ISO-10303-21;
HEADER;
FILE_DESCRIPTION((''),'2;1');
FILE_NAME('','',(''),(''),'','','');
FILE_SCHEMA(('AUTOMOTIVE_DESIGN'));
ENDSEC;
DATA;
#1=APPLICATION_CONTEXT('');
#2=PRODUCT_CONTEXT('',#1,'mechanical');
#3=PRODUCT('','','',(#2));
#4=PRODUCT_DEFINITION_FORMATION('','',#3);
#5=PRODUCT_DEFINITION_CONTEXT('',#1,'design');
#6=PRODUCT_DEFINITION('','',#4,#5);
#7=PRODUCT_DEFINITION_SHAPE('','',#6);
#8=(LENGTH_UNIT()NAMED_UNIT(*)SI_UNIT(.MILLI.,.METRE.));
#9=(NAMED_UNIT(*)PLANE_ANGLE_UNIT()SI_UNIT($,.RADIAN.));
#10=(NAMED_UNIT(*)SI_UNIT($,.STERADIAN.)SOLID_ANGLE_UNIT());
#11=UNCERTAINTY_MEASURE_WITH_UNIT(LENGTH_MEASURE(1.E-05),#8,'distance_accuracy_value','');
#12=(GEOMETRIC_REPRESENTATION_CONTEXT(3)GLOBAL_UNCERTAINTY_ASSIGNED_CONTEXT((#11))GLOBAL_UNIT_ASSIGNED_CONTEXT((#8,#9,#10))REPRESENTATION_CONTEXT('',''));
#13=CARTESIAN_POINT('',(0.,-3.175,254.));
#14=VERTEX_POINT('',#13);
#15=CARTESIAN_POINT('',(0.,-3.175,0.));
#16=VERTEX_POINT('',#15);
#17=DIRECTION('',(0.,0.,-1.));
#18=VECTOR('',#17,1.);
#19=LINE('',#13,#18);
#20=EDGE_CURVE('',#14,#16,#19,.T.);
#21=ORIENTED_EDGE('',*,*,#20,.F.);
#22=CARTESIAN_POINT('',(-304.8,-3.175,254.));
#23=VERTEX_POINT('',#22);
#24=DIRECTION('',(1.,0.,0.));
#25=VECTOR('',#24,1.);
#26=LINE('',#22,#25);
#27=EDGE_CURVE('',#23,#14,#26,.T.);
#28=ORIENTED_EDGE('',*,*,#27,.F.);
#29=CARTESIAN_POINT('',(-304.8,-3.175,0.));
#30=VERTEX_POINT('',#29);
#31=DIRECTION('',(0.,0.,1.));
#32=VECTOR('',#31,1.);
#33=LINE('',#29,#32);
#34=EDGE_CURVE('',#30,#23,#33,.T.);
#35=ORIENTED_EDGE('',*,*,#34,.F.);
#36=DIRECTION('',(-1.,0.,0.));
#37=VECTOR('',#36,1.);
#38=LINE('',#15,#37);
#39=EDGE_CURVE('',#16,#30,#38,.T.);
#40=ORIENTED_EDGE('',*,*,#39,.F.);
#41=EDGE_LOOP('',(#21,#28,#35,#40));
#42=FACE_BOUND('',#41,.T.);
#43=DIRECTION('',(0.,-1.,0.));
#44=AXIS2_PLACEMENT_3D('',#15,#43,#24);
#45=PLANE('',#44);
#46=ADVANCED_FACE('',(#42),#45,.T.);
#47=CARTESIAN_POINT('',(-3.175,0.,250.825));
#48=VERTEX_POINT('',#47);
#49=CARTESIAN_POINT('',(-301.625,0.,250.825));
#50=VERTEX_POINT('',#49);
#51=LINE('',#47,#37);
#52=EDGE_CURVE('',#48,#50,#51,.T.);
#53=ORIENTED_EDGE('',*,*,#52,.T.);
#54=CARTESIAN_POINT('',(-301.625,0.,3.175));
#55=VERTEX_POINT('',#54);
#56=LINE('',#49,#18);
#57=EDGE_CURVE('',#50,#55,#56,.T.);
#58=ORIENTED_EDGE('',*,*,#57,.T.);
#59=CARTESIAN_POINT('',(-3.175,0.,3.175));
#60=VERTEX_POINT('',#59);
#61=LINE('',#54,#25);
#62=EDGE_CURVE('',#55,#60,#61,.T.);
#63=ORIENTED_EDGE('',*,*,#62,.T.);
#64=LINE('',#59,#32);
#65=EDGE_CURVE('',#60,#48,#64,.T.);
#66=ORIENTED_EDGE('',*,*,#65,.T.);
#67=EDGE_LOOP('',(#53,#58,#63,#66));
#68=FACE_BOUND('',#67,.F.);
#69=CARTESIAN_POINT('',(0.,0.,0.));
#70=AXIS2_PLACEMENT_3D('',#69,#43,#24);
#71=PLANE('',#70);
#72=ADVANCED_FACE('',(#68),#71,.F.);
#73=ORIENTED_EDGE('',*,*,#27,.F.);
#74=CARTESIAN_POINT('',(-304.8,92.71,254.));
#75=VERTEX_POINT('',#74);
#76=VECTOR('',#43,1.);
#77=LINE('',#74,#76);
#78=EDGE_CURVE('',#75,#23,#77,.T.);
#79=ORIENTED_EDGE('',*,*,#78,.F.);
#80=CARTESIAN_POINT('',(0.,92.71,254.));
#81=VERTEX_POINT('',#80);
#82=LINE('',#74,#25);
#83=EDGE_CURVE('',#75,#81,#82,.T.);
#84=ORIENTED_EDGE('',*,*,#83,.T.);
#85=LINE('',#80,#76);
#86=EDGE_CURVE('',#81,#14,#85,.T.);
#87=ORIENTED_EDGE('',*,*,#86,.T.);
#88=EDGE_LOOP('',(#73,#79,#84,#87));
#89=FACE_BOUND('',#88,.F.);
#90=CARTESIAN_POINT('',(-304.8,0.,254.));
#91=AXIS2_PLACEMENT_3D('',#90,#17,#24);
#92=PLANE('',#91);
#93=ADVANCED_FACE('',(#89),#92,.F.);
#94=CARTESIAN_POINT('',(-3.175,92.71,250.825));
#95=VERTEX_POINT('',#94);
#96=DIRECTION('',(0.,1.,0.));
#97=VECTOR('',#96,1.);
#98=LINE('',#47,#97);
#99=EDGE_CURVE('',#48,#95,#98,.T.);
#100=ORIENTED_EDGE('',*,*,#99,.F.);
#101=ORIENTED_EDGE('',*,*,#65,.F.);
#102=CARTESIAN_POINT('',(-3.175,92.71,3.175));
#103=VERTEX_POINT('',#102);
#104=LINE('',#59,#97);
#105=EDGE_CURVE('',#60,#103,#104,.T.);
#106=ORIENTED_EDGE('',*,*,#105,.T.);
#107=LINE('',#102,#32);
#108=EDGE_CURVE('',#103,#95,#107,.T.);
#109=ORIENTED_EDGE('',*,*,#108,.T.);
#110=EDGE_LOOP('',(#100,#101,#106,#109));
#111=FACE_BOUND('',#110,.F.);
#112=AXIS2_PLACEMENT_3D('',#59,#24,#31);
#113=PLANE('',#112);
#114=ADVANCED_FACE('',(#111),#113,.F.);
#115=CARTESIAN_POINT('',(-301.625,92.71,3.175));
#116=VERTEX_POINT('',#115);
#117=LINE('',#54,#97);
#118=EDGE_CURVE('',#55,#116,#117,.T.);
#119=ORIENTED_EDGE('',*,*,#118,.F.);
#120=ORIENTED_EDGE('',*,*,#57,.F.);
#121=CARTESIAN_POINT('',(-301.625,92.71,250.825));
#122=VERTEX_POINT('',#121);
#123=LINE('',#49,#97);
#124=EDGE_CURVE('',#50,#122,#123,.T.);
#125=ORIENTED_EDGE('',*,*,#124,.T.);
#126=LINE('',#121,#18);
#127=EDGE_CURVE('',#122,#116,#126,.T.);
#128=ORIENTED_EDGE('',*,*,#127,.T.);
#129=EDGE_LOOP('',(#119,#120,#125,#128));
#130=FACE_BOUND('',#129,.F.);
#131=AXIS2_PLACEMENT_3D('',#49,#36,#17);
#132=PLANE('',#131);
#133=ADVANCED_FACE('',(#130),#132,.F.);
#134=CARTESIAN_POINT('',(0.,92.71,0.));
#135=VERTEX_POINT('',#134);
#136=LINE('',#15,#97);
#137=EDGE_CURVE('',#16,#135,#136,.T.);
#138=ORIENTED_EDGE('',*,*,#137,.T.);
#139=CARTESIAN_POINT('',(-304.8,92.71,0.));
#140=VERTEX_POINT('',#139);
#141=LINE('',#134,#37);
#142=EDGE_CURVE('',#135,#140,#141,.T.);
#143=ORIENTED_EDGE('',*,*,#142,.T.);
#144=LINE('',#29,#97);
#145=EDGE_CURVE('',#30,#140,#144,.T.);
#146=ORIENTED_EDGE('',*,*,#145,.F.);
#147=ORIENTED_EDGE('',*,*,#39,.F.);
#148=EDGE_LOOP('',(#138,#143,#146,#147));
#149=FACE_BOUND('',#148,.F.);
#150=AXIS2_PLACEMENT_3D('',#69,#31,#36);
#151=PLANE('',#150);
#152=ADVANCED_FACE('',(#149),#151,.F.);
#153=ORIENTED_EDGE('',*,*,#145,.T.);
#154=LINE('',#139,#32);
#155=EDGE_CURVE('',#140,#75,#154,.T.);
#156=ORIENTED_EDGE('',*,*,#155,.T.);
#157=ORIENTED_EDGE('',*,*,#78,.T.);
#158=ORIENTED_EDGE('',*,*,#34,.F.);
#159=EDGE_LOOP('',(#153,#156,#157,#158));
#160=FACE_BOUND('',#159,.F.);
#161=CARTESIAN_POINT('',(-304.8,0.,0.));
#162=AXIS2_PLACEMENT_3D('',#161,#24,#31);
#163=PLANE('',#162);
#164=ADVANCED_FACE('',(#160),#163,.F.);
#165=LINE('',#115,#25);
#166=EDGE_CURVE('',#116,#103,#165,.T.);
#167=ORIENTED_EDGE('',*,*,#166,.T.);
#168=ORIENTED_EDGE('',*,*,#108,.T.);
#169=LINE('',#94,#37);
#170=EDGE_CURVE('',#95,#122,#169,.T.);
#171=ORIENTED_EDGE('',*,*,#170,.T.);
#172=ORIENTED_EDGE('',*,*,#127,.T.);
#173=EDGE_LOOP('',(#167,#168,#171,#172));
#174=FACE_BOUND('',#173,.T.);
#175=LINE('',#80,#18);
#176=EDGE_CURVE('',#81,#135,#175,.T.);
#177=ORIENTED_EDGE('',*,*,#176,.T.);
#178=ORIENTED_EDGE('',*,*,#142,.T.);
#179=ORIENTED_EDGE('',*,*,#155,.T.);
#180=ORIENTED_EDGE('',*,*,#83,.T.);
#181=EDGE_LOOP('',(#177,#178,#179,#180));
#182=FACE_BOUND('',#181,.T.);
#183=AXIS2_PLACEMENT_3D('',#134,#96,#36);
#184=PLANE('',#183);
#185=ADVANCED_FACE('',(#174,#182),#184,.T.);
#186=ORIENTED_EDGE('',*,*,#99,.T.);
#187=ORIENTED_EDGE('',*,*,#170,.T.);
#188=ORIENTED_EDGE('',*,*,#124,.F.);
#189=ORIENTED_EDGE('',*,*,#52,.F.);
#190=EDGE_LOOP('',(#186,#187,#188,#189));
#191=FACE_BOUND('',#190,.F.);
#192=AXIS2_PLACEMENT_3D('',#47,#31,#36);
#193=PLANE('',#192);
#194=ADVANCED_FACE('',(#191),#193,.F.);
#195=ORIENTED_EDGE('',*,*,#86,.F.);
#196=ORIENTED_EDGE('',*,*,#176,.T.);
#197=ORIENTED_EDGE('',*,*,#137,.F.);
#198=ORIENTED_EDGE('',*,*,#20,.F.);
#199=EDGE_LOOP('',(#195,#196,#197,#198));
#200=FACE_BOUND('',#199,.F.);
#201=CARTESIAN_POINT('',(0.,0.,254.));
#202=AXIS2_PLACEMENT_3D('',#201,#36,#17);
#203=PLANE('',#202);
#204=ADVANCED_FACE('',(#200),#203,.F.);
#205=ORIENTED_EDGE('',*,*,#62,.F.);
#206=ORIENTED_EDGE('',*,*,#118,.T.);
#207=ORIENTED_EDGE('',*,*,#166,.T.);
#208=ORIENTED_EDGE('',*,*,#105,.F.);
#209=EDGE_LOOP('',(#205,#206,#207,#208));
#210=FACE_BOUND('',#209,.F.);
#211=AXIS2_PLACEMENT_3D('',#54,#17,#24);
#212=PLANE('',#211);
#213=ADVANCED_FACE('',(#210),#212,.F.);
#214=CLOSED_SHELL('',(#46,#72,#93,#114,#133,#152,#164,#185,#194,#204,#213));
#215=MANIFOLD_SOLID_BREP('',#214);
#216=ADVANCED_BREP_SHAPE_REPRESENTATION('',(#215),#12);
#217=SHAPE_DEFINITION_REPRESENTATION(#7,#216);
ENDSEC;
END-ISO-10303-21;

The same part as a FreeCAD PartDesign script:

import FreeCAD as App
import Part
import Sketcher

V = App.Vector
Q = App.Units.Quantity


def add_polygon(sketch, points):
    """Adds a closed chain of lines whose ends are joined by coincident constraints."""
    first, n = sketch.GeometryCount, len(points)
    for a, b in zip(points, points[1:] + points[:1]):
        sketch.addGeometry(Part.LineSegment(App.Vector(*a, 0), App.Vector(*b, 0)), False)
    for i in range(n):
        sketch.addConstraint(Sketcher.Constraint("Coincident", first + i, 2, first + (i + 1) % n, 1))

doc = App.newDocument("Part")
body = doc.addObject("PartDesign::Body", "Body")

# Sketch on XZ plane
sketch1 = body.newObject("Sketcher::SketchObject", "Sketch")
sketch1.AttachmentSupport = (doc.getObject("XZ_Plane"), [""])
sketch1.MapMode = "FlatFace"
add_polygon(sketch1, [(0, 254), (0, 0), (-305, 0), (-305, 254)])  # lines 0-3
add_polygon(sketch1, [(-3, 251), (-302, 251), (-302, 3), (-3, 3)])  # lines 4-7
sketch1.addConstraint([
    Sketcher.Constraint("Vertical", 0),
    Sketcher.Constraint("Horizontal", 1),
    Sketcher.Constraint("Vertical", 2),
    Sketcher.Constraint("Horizontal", 3),
    Sketcher.Constraint("Horizontal", 4),
    Sketcher.Constraint("Vertical", 5),
    Sketcher.Constraint("Horizontal", 6),
    Sketcher.Constraint("Vertical", 7),
    Sketcher.Constraint("Coincident", 0, 2, -1, 1),
    Sketcher.Constraint("DistanceX", 1, 2, 1, 1, Q("12 in")),
    Sketcher.Constraint("DistanceY", 0, 2, 0, 1, Q("10 in")),
    Sketcher.Constraint("DistanceY", -1, 1, 5, 2, Q("0.125 in")),
    Sketcher.Constraint("DistanceX", 6, 2, -1, 1, Q("0.125 in")),
    Sketcher.Constraint("DistanceX", 2, 2, 4, 2, Q("0.125 in")),
    Sketcher.Constraint("DistanceY", 4, 2, 2, 2, Q("0.125 in")),
])
pad1 = body.newObject("PartDesign::Pad", "Pad")
pad1.Profile = sketch1
pad1.Length = Q("3.65 in")
pad1.Reversed = True

# Sketch on XZ plane
sketch2 = body.newObject("Sketcher::SketchObject", "Sketch001")
sketch2.AttachmentSupport = (doc.getObject("XZ_Plane"), [""])
sketch2.MapMode = "FlatFace"
add_polygon(sketch2, [(-305, 0), (0, 0), (0, 254), (-305, 254)])  # lines 0-3
sketch2.addConstraint([
    Sketcher.Constraint("Horizontal", 0),
    Sketcher.Constraint("Vertical", 1),
    Sketcher.Constraint("Horizontal", 2),
    Sketcher.Constraint("Vertical", 3),
    Sketcher.Constraint("Coincident", 0, 2, -1, 1),
    Sketcher.Constraint("DistanceX", 0, 1, 0, 2, Q("12 in")),
    Sketcher.Constraint("DistanceY", 1, 1, 1, 2, Q("10 in")),
])
pad2 = body.newObject("PartDesign::Pad", "Pad001")
pad2.Profile = sketch2
pad2.Length = Q("0.125 in")

doc.recompute()
